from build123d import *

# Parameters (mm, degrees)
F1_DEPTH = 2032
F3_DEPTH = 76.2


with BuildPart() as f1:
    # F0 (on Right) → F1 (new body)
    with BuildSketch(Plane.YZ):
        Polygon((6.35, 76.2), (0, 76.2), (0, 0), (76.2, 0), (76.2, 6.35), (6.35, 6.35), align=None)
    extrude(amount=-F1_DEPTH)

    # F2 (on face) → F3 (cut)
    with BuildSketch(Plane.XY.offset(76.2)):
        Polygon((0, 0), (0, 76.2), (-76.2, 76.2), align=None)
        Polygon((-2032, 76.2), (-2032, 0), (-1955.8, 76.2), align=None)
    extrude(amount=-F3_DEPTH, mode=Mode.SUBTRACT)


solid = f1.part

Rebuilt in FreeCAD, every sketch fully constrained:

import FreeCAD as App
import Part
import Sketcher
from FreeCAD import Vector
Q = App.Units.Quantity

doc = App.newDocument("Part")
body = doc.addObject("PartDesign::Body", "Body")

# Sketch on YZ plane
sketch1 = body.newObject("Sketcher::SketchObject", "Sketch")
sketch1.AttachmentSupport = (doc.getObject("YZ_Plane"), [""])
sketch1.MapMode = "FlatFace"
sketch1.addGeometry([
    Part.LineSegment(Vector(6, 76, 0), Vector(0, 76, 0)),  # 0
    Part.LineSegment(Vector(0, 76, 0), Vector(0, 0, 0)),  # 1
    Part.LineSegment(Vector(0, 0, 0), Vector(76, 0, 0)),  # 2
    Part.LineSegment(Vector(76, 0, 0), Vector(76, 6, 0)),  # 3
    Part.LineSegment(Vector(76, 6, 0), Vector(6, 6, 0)),  # 4
    Part.LineSegment(Vector(6, 6, 0), Vector(6, 76, 0)),  # 5
], False)
sketch1.addConstraint([
    Sketcher.Constraint("Coincident", 0, 2, 1, 1),
    Sketcher.Constraint("Coincident", 1, 2, 2, 1),
    Sketcher.Constraint("Coincident", 2, 2, 3, 1),
    Sketcher.Constraint("Coincident", 3, 2, 4, 1),
    Sketcher.Constraint("Coincident", 4, 2, 5, 1),
    Sketcher.Constraint("Coincident", 5, 2, 0, 1),
    Sketcher.Constraint("Horizontal", 0),
    Sketcher.Constraint("Vertical", 1),
    Sketcher.Constraint("Horizontal", 2),
    Sketcher.Constraint("Vertical", 3),
    Sketcher.Constraint("Horizontal", 4),
    Sketcher.Constraint("Vertical", 5),
    Sketcher.Constraint("Coincident", 1, 2, -1, 1),
    Sketcher.Constraint("Equal", 2, 1),
    Sketcher.Constraint("Equal", 0, 3),
    Sketcher.Constraint("DistanceX", 2, 1, 2, 2, Q("3 in")),
    Sketcher.Constraint("DistanceX", 0, 2, 0, 1, Q("0.25 in")),
])
pad1 = body.newObject("PartDesign::Pad", "Pad")
pad1.Profile = sketch1
pad1.Length = Q("80 in")
pad1.Reversed = True

# Sketch on XY plane
sketch2 = body.newObject("Sketcher::SketchObject", "Sketch001")
sketch2.AttachmentSupport = (doc.getObject("XY_Plane"), [""])
sketch2.MapMode = "FlatFace"
sketch2.AttachmentOffset = App.Placement(Vector(0, 0, 3 * 25.4), App.Rotation())
sketch2.addGeometry([
    Part.LineSegment(Vector(0, 0, 0), Vector(0, 76, 0)),  # 0
    Part.LineSegment(Vector(0, 76, 0), Vector(-76, 76, 0)),  # 1
    Part.LineSegment(Vector(-76, 76, 0), Vector(0, 0, 0)),  # 2
    Part.LineSegment(Vector(-2032, 76, 0), Vector(-2032, 0, 0)),  # 3
    Part.LineSegment(Vector(-2032, 0, 0), Vector(-1956, 76, 0)),  # 4
    Part.LineSegment(Vector(-1956, 76, 0), Vector(-2032, 76, 0)),  # 5
], False)
sketch2.addConstraint([
    Sketcher.Constraint("Coincident", 0, 2, 1, 1),
    Sketcher.Constraint("Coincident", 1, 2, 2, 1),
    Sketcher.Constraint("Coincident", 2, 2, 0, 1),
    Sketcher.Constraint("Coincident", 3, 2, 4, 1),
    Sketcher.Constraint("Coincident", 4, 2, 5, 1),
    Sketcher.Constraint("Coincident", 5, 2, 3, 1),
    Sketcher.Constraint("Vertical", 0),
    Sketcher.Constraint("Horizontal", 1),
    Sketcher.Constraint("Vertical", 3),
    Sketcher.Constraint("Horizontal", 5),
    Sketcher.Constraint("Coincident", 2, 2, -1, 1),
    Sketcher.Constraint("PointOnObject", 3, 2, -1),
    Sketcher.Constraint("Perpendicular", 2, 4),
    Sketcher.Constraint("Horizontal", 1, 2, 4, 2),
    Sketcher.Constraint("Equal", 1, 5),
    Sketcher.Constraint("DistanceX", 1, 2, 1, 1, Q("3 in")),
    Sketcher.Constraint("DistanceX", 3, 2, -1, 1, Q("80 in")),
])
pocket1 = body.newObject("PartDesign::Pocket", "Pocket")
pocket1.Profile = sketch2
pocket1.Length = Q("3 in")

doc.recompute()
